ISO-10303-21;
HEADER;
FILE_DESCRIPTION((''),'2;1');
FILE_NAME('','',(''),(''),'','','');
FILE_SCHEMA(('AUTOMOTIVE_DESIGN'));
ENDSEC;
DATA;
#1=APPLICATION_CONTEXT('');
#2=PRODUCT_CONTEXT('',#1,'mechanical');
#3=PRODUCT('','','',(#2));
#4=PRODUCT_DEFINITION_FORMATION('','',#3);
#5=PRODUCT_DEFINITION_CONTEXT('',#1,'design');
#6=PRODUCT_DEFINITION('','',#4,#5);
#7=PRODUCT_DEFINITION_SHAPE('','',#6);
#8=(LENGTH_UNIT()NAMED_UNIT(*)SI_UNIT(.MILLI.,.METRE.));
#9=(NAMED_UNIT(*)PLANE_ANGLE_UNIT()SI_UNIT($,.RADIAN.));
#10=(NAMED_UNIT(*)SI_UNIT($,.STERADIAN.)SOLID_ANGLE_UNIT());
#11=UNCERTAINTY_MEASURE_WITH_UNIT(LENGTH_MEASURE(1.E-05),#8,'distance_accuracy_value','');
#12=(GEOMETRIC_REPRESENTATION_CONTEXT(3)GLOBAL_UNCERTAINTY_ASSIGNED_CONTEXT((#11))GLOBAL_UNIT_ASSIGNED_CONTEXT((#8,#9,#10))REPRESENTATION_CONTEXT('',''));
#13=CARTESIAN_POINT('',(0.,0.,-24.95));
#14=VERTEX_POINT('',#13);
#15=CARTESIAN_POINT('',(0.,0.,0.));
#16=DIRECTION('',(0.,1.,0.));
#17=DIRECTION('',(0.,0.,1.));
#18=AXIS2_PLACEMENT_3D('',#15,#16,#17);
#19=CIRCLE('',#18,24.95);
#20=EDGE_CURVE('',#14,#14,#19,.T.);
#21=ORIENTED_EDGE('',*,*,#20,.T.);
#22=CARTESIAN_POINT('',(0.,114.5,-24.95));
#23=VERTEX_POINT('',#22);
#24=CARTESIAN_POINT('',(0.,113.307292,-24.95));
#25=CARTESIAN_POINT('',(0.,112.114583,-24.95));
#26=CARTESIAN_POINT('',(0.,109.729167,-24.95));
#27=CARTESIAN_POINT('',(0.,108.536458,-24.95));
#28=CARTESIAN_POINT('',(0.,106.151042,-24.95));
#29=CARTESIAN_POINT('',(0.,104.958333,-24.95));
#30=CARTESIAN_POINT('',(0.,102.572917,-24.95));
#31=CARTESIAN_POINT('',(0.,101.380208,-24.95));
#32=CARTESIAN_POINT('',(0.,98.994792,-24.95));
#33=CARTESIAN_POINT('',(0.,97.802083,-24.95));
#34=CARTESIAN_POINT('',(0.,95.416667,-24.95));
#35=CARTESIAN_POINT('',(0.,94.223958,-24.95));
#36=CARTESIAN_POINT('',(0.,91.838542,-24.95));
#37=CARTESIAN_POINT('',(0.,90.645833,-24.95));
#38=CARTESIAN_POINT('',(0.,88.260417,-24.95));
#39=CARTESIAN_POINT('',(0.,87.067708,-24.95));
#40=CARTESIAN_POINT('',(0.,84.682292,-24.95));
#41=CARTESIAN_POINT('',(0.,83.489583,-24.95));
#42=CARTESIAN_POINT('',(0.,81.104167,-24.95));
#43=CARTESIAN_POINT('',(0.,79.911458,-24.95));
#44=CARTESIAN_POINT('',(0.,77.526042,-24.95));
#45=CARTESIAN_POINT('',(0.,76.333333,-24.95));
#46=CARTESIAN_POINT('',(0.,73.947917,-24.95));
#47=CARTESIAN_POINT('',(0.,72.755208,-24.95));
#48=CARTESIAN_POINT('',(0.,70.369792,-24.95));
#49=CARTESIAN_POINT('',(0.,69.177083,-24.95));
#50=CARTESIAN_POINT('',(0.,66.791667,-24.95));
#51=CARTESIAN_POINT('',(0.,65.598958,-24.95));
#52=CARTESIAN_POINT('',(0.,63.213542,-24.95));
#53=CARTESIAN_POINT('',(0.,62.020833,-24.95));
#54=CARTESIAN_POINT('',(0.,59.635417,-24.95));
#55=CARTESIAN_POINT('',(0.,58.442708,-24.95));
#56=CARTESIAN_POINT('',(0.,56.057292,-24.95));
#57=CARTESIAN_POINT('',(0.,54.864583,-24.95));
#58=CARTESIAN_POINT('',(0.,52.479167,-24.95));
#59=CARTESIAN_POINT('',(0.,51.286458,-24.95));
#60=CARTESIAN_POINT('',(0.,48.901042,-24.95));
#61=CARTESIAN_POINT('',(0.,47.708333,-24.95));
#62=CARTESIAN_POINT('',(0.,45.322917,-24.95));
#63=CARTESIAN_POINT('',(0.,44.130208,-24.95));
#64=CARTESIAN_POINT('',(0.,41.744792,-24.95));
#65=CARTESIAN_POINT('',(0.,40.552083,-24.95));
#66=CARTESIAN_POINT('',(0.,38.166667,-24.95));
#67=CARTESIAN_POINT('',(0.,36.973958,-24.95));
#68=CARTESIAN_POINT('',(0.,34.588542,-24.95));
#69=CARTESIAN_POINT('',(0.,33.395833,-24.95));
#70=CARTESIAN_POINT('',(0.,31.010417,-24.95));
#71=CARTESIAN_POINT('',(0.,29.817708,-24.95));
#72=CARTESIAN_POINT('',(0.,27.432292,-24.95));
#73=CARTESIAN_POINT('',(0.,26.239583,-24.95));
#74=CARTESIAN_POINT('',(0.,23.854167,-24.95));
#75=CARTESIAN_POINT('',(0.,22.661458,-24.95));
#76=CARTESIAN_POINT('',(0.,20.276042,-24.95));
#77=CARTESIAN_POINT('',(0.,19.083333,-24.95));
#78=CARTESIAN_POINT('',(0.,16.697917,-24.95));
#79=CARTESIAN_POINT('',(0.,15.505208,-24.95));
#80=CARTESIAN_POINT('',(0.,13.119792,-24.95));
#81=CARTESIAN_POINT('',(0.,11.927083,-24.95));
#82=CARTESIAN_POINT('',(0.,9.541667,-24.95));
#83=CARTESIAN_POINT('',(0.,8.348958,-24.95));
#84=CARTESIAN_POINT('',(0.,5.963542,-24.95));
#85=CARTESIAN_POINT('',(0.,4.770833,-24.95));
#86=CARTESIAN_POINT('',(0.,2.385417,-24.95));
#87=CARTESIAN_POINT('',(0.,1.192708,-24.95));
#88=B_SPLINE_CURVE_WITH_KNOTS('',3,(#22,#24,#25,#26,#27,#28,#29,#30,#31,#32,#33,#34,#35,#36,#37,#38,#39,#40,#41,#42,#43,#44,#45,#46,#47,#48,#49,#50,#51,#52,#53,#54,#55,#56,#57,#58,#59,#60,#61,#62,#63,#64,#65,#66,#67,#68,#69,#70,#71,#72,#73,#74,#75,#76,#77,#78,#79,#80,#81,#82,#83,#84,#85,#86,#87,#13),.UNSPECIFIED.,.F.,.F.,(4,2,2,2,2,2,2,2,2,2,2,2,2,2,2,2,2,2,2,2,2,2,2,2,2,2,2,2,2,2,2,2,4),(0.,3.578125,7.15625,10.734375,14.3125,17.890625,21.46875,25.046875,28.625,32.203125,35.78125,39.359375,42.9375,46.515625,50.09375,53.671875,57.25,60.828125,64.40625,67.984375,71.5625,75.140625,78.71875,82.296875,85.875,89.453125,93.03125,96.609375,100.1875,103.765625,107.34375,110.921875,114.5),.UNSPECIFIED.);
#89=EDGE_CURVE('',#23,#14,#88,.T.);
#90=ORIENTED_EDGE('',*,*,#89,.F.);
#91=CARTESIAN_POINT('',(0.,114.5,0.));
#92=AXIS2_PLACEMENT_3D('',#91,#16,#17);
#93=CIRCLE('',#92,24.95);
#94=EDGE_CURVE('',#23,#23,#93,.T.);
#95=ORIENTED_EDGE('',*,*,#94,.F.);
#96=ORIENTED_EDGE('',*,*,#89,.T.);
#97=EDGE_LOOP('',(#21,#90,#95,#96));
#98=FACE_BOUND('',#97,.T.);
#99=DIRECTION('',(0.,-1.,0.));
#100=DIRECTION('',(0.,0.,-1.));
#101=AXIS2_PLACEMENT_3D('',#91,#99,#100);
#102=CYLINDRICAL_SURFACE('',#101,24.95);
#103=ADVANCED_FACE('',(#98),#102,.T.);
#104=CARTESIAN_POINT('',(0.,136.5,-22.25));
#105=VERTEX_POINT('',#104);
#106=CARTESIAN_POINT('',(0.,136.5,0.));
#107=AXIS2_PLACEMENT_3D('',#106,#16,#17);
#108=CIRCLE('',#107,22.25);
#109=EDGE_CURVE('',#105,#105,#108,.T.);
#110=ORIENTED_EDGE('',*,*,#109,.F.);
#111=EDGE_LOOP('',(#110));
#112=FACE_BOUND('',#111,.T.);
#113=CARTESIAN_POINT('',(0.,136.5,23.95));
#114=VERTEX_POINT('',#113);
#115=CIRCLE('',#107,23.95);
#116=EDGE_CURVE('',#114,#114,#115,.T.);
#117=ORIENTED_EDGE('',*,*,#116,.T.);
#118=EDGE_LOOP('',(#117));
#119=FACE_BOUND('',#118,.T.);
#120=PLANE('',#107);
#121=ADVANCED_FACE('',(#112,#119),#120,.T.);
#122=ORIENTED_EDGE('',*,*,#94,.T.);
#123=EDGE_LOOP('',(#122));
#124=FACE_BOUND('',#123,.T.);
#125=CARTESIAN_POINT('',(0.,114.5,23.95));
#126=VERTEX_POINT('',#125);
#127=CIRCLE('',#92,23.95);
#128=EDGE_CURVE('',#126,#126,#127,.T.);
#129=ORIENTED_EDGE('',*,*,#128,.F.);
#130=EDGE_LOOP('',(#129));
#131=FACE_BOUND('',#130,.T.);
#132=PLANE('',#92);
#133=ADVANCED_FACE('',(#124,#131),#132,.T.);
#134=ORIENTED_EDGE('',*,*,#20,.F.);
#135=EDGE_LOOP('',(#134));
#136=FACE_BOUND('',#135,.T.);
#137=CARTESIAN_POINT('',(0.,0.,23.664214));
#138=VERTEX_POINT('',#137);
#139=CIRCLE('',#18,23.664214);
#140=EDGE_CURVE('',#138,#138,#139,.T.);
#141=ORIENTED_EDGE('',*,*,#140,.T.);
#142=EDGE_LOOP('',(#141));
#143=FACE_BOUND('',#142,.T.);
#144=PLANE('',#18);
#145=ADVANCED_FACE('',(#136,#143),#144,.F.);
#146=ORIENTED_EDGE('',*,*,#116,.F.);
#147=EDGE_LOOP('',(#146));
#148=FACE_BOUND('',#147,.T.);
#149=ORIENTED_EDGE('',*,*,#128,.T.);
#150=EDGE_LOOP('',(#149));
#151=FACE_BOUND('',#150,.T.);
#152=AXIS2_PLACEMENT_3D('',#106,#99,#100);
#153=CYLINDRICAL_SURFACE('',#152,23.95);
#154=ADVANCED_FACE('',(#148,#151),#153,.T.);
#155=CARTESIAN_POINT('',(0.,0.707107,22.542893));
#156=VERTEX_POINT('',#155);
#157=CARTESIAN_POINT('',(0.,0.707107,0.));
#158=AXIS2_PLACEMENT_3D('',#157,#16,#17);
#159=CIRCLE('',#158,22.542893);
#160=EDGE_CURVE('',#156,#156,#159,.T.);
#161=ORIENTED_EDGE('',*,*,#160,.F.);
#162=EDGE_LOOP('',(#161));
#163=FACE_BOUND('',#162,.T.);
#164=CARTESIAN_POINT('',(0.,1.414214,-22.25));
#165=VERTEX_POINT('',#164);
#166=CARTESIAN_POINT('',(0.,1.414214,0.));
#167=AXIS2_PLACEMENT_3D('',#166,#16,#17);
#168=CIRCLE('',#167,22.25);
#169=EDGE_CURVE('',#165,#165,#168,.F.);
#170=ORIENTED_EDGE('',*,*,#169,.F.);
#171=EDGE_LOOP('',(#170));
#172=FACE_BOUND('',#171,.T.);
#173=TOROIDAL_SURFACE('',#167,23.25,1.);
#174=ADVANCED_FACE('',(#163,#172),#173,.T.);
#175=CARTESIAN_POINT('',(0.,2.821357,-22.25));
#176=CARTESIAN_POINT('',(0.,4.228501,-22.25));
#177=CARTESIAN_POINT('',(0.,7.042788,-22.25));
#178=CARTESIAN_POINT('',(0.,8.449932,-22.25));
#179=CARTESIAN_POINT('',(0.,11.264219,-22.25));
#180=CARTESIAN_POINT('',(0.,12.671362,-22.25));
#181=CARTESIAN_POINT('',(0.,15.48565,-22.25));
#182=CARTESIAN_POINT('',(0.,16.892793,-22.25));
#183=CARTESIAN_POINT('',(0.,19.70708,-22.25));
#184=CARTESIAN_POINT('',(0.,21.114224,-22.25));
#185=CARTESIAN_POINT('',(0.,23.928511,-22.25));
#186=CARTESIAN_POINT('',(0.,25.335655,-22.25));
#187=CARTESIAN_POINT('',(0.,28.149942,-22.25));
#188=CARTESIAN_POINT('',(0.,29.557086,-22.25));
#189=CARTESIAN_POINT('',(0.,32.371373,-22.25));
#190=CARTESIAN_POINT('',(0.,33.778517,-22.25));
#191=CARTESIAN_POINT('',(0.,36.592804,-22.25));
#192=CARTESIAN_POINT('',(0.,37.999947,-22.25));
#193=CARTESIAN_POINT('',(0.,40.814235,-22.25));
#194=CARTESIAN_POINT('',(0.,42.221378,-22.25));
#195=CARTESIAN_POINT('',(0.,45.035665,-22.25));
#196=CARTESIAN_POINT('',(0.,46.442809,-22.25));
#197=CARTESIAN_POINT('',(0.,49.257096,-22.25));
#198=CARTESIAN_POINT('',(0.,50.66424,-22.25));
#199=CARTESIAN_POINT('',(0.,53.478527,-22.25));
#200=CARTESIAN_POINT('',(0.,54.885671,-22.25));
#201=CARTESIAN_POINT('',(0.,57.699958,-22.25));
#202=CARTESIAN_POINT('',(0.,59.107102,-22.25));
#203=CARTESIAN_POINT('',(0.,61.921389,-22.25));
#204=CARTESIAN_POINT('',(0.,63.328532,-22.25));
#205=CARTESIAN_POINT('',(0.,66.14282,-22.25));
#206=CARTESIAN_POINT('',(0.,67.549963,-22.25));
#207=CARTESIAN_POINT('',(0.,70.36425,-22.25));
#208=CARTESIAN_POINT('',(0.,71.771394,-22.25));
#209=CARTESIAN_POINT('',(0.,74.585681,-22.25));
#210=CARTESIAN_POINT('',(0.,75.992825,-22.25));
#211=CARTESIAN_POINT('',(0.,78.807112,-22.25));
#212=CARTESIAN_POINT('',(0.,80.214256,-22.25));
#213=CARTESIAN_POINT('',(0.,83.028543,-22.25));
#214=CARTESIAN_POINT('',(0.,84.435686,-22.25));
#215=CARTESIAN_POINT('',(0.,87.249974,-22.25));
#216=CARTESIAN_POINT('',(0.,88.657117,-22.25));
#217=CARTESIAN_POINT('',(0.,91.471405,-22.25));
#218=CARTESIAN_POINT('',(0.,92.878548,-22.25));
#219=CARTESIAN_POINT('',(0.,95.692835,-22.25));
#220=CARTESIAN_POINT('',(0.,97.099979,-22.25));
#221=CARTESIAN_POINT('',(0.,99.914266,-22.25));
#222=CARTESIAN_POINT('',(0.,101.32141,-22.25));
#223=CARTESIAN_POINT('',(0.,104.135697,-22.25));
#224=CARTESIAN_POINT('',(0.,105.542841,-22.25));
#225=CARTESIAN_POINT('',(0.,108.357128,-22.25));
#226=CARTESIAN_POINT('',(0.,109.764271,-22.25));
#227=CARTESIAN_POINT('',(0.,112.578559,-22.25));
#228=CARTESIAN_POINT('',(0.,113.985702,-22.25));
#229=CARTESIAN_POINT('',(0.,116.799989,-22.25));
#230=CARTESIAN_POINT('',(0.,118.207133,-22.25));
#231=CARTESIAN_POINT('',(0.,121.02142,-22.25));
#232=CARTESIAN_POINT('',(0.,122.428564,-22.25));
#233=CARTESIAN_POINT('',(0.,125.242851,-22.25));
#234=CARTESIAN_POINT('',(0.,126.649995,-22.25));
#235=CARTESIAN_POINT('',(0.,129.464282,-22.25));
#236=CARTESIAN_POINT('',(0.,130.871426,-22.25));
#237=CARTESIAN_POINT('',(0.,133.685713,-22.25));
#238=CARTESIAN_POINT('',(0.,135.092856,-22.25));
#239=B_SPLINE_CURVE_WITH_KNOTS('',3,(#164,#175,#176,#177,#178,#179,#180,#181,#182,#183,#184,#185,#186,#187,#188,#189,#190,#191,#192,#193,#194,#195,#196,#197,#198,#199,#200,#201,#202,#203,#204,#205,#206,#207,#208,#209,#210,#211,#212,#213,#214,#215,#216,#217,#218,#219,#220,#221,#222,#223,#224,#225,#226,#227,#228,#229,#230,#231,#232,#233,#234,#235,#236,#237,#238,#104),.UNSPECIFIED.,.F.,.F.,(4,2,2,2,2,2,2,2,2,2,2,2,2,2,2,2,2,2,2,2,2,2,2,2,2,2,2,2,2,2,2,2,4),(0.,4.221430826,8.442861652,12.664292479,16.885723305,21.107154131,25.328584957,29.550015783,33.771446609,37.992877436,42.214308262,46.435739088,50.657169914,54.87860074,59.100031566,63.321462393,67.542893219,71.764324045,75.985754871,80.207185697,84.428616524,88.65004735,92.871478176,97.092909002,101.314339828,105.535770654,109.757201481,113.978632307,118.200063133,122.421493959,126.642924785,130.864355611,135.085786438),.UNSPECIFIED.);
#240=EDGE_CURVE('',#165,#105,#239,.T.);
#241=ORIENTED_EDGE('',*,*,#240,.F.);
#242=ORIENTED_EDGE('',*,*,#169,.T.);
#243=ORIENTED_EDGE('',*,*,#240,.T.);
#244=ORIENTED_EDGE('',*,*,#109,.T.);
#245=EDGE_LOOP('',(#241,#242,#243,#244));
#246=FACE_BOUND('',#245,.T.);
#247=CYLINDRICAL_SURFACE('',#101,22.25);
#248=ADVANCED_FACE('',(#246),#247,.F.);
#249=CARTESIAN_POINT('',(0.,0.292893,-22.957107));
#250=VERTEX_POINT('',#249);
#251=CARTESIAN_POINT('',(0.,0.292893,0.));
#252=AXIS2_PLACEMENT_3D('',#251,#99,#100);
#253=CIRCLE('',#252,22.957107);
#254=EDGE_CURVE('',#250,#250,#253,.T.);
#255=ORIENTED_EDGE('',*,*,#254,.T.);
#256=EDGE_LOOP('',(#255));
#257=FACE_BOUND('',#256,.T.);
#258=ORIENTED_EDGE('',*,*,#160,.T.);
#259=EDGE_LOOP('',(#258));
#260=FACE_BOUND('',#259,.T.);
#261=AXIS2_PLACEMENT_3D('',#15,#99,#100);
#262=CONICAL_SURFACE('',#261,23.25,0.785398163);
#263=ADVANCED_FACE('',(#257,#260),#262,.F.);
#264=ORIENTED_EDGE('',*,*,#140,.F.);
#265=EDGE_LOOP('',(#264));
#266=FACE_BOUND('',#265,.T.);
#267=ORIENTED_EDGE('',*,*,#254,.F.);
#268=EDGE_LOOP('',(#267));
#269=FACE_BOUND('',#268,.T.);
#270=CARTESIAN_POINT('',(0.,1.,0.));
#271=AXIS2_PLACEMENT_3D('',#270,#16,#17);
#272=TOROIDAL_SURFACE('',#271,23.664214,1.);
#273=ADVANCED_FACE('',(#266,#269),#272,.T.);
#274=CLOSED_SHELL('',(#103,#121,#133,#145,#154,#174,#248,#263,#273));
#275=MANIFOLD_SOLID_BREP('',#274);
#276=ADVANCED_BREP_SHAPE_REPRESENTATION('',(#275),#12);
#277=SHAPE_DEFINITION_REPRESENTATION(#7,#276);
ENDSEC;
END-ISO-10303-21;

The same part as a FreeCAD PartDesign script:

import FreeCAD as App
import Part
import Sketcher

V = App.Vector


def edges_at(feature, points):
    """Names of the edges that pass closest to the given points."""
    edges = feature.Shape.Edges
    near = lambda p: min(range(len(edges)), key=lambda i: edges[i].distToShape(Part.Vertex(*p))[0])
    return sorted({f"Edge{near(p) + 1}" for p in points})

doc = App.newDocument("Part")
body = doc.addObject("PartDesign::Body", "Body")

# Sketch on XZ plane
sketch1 = body.newObject("Sketcher::SketchObject", "Sketch")
sketch1.AttachmentSupport = (doc.getObject("XZ_Plane"), [""])
sketch1.MapMode = "FlatFace"
sketch1.addGeometry([
    Part.Circle(V(0, 0, 0), V(0, 0, 1), 24.95),
    Part.Circle(V(0, 0, 0), V(0, 0, 1), 22.25),
], False)
sketch1.addConstraint([
    Sketcher.Constraint("Coincident", 0, 3, -1, 1),
    Sketcher.Constraint("Coincident", 1, 3, -1, 1),
    Sketcher.Constraint("Diameter", 0, 49.9),
    Sketcher.Constraint("Diameter", 1, 44.5),
])
pad1 = body.newObject("PartDesign::Pad", "Pad")
pad1.Profile = sketch1
pad1.Length = 114.5
pad1.Reversed = True

# Sketch on XZ plane
sketch2 = body.newObject("Sketcher::SketchObject", "Sketch001")
sketch2.AttachmentSupport = (doc.getObject("XZ_Plane"), [""])
sketch2.MapMode = "FlatFace"
sketch2.AttachmentOffset = App.Placement(V(0, 0, -114.5), App.Rotation())
sketch2.addGeometry([
    Part.Circle(V(0, 0, 0), V(0, 0, 1), 23.95),
    Part.Circle(V(0, 0, 0), V(0, 0, 1), 22.25),
], False)
sketch2.addConstraint([
    Sketcher.Constraint("Coincident", 0, 3, -1, 1),
    Sketcher.Constraint("Coincident", 1, 3, -1, 1),
    Sketcher.Constraint("Diameter", 0, 47.9),
    Sketcher.Constraint("Diameter", 1, 44.5),
])
pad2 = body.newObject("PartDesign::Pad", "Pad001")
pad2.Profile = sketch2
pad2.Length = 22
pad2.Reversed = True
doc.recompute()

chamfer = body.newObject("PartDesign::Chamfer", "Chamfer")
chamfer.Base = (pad2, edges_at(pad2, [(0, 0, 22.25)]))
chamfer.Size = 1
doc.recompute()

fillet = body.newObject("PartDesign::Fillet", "Fillet")
fillet.Base = (chamfer, edges_at(chamfer, [(0, 0, 23.25), (0, 1, 22.25)]))
fillet.Radius = 1

doc.recompute()
